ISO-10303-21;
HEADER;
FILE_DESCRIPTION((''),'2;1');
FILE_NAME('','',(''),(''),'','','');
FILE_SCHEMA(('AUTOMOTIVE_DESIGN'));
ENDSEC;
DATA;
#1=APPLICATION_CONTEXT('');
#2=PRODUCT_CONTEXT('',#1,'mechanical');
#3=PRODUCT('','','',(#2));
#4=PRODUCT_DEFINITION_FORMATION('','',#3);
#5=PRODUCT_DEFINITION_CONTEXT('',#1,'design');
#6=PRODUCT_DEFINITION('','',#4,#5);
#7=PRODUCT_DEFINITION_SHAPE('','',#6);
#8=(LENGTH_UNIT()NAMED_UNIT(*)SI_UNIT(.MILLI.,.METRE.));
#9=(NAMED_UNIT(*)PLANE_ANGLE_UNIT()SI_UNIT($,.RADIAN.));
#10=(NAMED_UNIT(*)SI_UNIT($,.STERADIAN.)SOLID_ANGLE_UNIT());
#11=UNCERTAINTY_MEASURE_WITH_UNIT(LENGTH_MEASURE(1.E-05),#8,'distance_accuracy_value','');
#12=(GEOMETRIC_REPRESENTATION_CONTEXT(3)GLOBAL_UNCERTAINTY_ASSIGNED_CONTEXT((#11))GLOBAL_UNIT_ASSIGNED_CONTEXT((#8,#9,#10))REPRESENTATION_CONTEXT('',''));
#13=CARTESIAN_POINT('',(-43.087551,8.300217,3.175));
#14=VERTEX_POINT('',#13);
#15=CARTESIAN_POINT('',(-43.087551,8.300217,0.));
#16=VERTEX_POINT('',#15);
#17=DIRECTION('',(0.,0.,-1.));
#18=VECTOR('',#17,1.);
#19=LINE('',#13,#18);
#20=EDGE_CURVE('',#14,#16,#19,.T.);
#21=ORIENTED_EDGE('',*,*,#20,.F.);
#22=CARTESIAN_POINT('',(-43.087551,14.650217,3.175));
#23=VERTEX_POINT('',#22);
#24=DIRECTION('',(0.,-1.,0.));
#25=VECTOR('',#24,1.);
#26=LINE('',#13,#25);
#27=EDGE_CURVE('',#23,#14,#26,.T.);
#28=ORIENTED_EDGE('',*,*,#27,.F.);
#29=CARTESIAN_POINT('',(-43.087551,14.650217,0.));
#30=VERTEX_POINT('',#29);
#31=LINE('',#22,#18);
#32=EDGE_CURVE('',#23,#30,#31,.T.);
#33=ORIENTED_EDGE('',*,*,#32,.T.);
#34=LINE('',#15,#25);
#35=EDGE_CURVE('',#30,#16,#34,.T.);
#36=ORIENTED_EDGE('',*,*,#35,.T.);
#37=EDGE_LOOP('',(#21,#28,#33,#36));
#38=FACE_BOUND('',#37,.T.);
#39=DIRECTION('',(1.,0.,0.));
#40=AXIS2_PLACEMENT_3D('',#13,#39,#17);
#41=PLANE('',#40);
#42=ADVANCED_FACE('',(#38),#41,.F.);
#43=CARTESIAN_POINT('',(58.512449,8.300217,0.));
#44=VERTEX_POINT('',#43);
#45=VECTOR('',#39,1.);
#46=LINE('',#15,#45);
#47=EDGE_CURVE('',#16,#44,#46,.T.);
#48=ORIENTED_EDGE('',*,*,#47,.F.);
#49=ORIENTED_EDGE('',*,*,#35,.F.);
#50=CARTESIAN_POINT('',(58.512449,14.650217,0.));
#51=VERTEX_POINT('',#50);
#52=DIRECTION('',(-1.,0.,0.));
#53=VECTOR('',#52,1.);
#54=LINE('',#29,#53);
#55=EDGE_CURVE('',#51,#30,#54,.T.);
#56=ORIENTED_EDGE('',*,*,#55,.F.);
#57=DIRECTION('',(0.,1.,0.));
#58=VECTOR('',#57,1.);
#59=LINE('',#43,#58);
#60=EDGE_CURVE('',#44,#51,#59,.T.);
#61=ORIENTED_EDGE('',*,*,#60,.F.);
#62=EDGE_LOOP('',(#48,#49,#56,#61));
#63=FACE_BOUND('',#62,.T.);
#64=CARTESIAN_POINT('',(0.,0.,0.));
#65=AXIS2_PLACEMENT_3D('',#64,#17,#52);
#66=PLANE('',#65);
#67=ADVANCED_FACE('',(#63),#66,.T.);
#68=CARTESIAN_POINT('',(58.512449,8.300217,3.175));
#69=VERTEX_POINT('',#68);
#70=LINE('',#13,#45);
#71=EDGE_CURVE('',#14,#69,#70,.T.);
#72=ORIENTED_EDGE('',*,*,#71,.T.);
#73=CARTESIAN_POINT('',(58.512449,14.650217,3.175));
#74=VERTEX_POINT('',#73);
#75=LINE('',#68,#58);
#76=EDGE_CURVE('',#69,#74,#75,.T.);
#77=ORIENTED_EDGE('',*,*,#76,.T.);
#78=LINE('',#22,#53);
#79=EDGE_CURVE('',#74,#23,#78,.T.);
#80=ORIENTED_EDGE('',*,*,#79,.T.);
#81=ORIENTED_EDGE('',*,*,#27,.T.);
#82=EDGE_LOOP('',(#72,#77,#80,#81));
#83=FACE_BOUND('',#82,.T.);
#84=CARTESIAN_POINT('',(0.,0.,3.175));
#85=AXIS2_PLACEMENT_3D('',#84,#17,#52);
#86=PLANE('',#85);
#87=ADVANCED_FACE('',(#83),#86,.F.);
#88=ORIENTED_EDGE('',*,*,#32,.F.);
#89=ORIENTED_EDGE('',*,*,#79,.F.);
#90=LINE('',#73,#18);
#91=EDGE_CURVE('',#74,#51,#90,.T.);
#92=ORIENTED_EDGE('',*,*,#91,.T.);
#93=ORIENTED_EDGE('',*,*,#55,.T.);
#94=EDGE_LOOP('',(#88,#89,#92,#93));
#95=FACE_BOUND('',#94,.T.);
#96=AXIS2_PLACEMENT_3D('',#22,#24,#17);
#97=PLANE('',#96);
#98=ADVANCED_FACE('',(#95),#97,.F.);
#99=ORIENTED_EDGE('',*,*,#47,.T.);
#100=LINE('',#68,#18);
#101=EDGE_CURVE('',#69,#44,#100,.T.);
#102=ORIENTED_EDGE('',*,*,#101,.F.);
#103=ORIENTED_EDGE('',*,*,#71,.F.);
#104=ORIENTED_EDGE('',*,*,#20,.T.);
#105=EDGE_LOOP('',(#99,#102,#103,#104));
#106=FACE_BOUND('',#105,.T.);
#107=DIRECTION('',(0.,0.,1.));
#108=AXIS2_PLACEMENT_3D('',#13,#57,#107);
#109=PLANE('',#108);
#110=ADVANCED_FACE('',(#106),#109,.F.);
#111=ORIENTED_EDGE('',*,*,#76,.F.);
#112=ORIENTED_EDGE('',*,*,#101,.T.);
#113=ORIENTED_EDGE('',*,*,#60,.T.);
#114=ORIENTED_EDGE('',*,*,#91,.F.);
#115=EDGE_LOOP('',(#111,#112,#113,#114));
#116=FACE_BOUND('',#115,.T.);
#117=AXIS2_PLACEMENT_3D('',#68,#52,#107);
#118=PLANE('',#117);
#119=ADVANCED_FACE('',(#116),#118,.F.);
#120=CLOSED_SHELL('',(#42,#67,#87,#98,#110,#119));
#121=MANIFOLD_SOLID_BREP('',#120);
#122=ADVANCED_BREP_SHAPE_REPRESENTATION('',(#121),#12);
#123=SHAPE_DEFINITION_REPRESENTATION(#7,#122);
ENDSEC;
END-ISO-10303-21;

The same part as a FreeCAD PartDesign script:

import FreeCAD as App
import Part
import Sketcher

V = App.Vector
Q = App.Units.Quantity

doc = App.newDocument("Part")
body = doc.addObject("PartDesign::Body", "Body")

# Sketch on XY plane
sketch1 = body.newObject("Sketcher::SketchObject", "Sketch")
sketch1.AttachmentSupport = (doc.getObject("XY_Plane"), [""])
sketch1.MapMode = "FlatFace"
sketch1.addGeometry(Part.LineSegment(V(-43, 15, 0), V(-43, 8, 0)), False)
sketch1.addGeometry(Part.LineSegment(V(-43, 8, 0), V(59, 8, 0)), False)
sketch1.addGeometry(Part.LineSegment(V(59, 8, 0), V(59, 15, 0)), False)
sketch1.addGeometry(Part.LineSegment(V(59, 15, 0), V(-43, 15, 0)), False)
sketch1.addConstraint(Sketcher.Constraint("Coincident", 0, 2, 1, 1))
sketch1.addConstraint(Sketcher.Constraint("Coincident", 1, 2, 2, 1))
sketch1.addConstraint(Sketcher.Constraint("Coincident", 2, 2, 3, 1))
sketch1.addConstraint(Sketcher.Constraint("Coincident", 3, 2, 0, 1))
sketch1.addConstraint(Sketcher.Constraint("Vertical", 0))
sketch1.addConstraint(Sketcher.Constraint("Horizontal", 1))
sketch1.addConstraint(Sketcher.Constraint("Vertical", 2))
sketch1.addConstraint(Sketcher.Constraint("Horizontal", 3))
sketch1.addConstraint(Sketcher.Constraint("DistanceX", 1, 1, 1, 2, Q("4 in")))
sketch1.addConstraint(Sketcher.Constraint("DistanceY", 0, 2, 0, 1, Q("0.25 in")))
sketch1.addConstraint(Sketcher.Constraint("DistanceX", 0, 2, -1, 1, 43.087551))
sketch1.addConstraint(Sketcher.Constraint("DistanceY", -1, 1, 0, 2, 8.300217))
pad1 = body.newObject("PartDesign::Pad", "Pad")
pad1.Profile = sketch1
pad1.Length = Q("0.125 in")

doc.recompute()
